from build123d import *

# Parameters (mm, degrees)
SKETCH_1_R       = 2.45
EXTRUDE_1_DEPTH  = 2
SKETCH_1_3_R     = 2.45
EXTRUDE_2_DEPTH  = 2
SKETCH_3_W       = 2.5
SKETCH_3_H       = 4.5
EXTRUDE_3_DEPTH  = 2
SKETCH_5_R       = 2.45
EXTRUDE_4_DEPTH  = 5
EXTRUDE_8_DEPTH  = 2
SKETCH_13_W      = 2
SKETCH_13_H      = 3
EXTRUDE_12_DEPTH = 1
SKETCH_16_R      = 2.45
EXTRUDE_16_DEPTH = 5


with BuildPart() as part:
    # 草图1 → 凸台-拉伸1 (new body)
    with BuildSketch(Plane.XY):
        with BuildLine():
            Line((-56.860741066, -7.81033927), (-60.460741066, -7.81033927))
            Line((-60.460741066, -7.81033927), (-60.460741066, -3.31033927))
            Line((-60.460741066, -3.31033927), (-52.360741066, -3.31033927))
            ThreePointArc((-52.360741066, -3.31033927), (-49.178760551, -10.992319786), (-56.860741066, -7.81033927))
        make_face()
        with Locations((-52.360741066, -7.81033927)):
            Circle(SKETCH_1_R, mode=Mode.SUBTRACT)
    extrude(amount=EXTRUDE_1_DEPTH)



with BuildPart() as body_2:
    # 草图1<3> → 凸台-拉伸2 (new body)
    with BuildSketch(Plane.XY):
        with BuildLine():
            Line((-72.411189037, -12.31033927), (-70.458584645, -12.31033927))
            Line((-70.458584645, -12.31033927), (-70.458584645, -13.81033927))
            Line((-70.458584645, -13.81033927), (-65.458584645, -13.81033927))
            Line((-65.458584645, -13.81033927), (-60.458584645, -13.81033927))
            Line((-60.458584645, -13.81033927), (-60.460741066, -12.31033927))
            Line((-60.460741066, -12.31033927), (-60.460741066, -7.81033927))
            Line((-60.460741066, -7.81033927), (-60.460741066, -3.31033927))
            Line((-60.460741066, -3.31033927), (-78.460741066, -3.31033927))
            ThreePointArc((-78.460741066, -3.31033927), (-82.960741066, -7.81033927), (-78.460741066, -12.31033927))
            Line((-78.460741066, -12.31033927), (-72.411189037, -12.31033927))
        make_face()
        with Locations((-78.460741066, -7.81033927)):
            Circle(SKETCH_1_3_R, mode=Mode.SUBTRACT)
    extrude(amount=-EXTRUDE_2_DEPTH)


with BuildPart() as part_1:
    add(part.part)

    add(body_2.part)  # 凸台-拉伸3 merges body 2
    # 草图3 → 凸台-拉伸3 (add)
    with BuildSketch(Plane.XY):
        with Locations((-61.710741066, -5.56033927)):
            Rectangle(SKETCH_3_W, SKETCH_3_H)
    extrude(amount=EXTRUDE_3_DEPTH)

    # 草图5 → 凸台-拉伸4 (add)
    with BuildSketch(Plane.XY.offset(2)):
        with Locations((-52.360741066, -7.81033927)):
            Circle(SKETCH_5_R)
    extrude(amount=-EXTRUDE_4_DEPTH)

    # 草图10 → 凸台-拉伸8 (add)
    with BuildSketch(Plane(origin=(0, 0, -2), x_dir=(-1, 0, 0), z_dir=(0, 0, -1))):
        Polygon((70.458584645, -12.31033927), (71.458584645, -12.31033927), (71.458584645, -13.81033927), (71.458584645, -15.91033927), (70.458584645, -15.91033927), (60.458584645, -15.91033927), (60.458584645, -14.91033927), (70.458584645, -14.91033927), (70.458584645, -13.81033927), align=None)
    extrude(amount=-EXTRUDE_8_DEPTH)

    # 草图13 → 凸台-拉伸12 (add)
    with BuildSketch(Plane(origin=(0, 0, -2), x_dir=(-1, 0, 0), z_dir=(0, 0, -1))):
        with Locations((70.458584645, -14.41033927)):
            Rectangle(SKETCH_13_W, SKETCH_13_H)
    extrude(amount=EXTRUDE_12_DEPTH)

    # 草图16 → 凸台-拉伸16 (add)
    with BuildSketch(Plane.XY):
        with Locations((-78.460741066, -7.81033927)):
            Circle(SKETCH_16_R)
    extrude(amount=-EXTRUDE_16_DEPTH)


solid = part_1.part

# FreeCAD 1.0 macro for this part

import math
import FreeCAD as App
import Part
import Sketcher

doc = App.newDocument("Part")
body = doc.addObject("PartDesign::Body", "Body")

sketch1 = body.newObject("Sketcher::SketchObject", "Sketch")
sketch1.AttachmentSupport = (doc.getObject("XY_Plane"), [""])
sketch1.MapMode = "FlatFace"
sketch1.addGeometry([
    Part.LineSegment(App.Vector(-60.5, -7.8, 0), App.Vector(-56.9, -7.8, 0)),
    Part.ArcOfCircle(Part.Circle(App.Vector(-52.4, -7.8, 0), App.Vector(0, 0, 1), 4.5), math.radians(180), math.radians(450)),
    Part.LineSegment(App.Vector(-52.4, -3.3, 0), App.Vector(-60.5, -3.3, 0)),
    Part.LineSegment(App.Vector(-60.5, -3.3, 0), App.Vector(-60.5, -7.8, 0)),
    Part.Circle(App.Vector(-52.4, -7.8, 0), App.Vector(0, 0, 1), 2.5),
], False)
sketch1.addConstraint([
    Sketcher.Constraint("Coincident", 0, 2, 1, 1),
    Sketcher.Constraint("Tangent", 1, 2, 2, 1),
    Sketcher.Constraint("Coincident", 2, 2, 3, 1),
    Sketcher.Constraint("Coincident", 3, 2, 0, 1),
    Sketcher.Constraint("Horizontal", 0),
    Sketcher.Constraint("Horizontal", 2),
    Sketcher.Constraint("Vertical", 3),
    Sketcher.Constraint("Coincident", 4, 3, 1, 3),
    Sketcher.Constraint("Horizontal", 4, 3, 0, 2),
    Sketcher.Constraint("Diameter", 4, 4.9),
    Sketcher.Constraint("Radius", 1, 4.5),
    Sketcher.Constraint("DistanceX", 0, 1, 0, 2, 3.6),
    Sketcher.Constraint("DistanceX", 1, 3, -1, 1, 52.360741),
    Sketcher.Constraint("DistanceY", 1, 3, -1, 1, 7.810339),
])
pad1 = body.newObject("PartDesign::Pad", "Pad")
pad1.Profile = sketch1
pad1.Length = 2
body2 = doc.addObject("PartDesign::Body", "Body001")

sketch2 = body2.newObject("Sketcher::SketchObject", "Sketch001")
sketch2.AttachmentSupport = (doc.getObject("XY_Plane001"), [""])
sketch2.MapMode = "FlatFace"
sketch2.addGeometry([
    Part.LineSegment(App.Vector(-70.5, -12.3, 0), App.Vector(-70.5, -13.8, 0)),
    Part.LineSegment(App.Vector(-70.5, -13.8, 0), App.Vector(-60.5, -13.8, 0)),
    Part.LineSegment(App.Vector(-60.5, -13.8, 0), App.Vector(-60.5, -12.3, 0)),
    Part.LineSegment(App.Vector(-60.5, -12.3, 0), App.Vector(-60.5, -3.3, 0)),
    Part.LineSegment(App.Vector(-60.5, -3.3, 0), App.Vector(-78.5, -3.3, 0)),
    Part.ArcOfCircle(Part.Circle(App.Vector(-78.5, -7.8, 0), App.Vector(0, 0, 1), 4.5), math.radians(90), math.radians(270)),
    Part.LineSegment(App.Vector(-78.5, -12.3, 0), App.Vector(-70.5, -12.3, 0)),
    Part.Circle(App.Vector(-78.5, -7.8, 0), App.Vector(0, 0, 1), 2.5),
], False)
sketch2.addConstraint([
    Sketcher.Constraint("Coincident", 0, 2, 1, 1),
    Sketcher.Constraint("Coincident", 1, 2, 2, 1),
    Sketcher.Constraint("Coincident", 2, 2, 3, 1),
    Sketcher.Constraint("Coincident", 3, 2, 4, 1),
    Sketcher.Constraint("Tangent", 4, 2, 5, 1),
    Sketcher.Constraint("Tangent", 5, 2, 6, 1),
    Sketcher.Constraint("Coincident", 6, 2, 0, 1),
    Sketcher.Constraint("Vertical", 0),
    Sketcher.Constraint("Horizontal", 1),
    Sketcher.Constraint("Vertical", 3),
    Sketcher.Constraint("Horizontal", 4),
    Sketcher.Constraint("Horizontal", 6),
    Sketcher.Constraint("Coincident", 7, 3, 5, 3),
    Sketcher.Constraint("Horizontal", 2, 2, 5, 2),
    Sketcher.Constraint("Diameter", 7, 4.9),
    Sketcher.Constraint("Radius", 5, 4.5),
    Sketcher.Constraint("DistanceX", 1, 1, 1, 2, 10.0),
    Sketcher.Constraint("DistanceX", 4, 2, 4, 1, 18.0),
    Sketcher.Constraint("DistanceY", 0, 2, 0, 1, 1.5),
    Sketcher.Constraint("DistanceX", 6, 1, 6, 2, 8.002156),
    Sketcher.Constraint("DistanceX", 5, 3, -1, 1, 78.460741),
    Sketcher.Constraint("DistanceY", 5, 3, -1, 1, 7.810339),
])
pad2 = body2.newObject("PartDesign::Pad", "Pad001")
pad2.Profile = sketch2
pad2.Length = 2
pad2.Reversed = True
body.AllowCompound = True
doc.recompute()

boolean = body.newObject("PartDesign::Boolean", "Boolean")
boolean.Type = "Fuse"
boolean.addObjects([body2])

sketch3 = body.newObject("Sketcher::SketchObject", "Sketch002")
sketch3.AttachmentSupport = (doc.getObject("XY_Plane"), [""])
sketch3.MapMode = "FlatFace"
sketch3.addGeometry([
    Part.LineSegment(App.Vector(-63, -3.3, 0), App.Vector(-63, -7.8, 0)),
    Part.LineSegment(App.Vector(-63, -7.8, 0), App.Vector(-60.5, -7.8, 0)),
    Part.LineSegment(App.Vector(-60.5, -7.8, 0), App.Vector(-60.5, -3.3, 0)),
    Part.LineSegment(App.Vector(-60.5, -3.3, 0), App.Vector(-63, -3.3, 0)),
], False)
sketch3.addConstraint([
    Sketcher.Constraint("Coincident", 0, 2, 1, 1),
    Sketcher.Constraint("Coincident", 1, 2, 2, 1),
    Sketcher.Constraint("Coincident", 2, 2, 3, 1),
    Sketcher.Constraint("Coincident", 3, 2, 0, 1),
    Sketcher.Constraint("Vertical", 0),
    Sketcher.Constraint("Horizontal", 1),
    Sketcher.Constraint("Vertical", 2),
    Sketcher.Constraint("Horizontal", 3),
    Sketcher.Constraint("DistanceX", 1, 1, 1, 2, 2.5),
    Sketcher.Constraint("DistanceY", 0, 2, 0, 1, 4.5),
    Sketcher.Constraint("DistanceX", 0, 2, -1, 1, 62.960741),
    Sketcher.Constraint("DistanceY", 0, 2, -1, 1, 7.810339),
])
pad3 = body.newObject("PartDesign::Pad", "Pad002")
pad3.Profile = sketch3
pad3.Length = 2

sketch4 = body.newObject("Sketcher::SketchObject", "Sketch003")
sketch4.AttachmentSupport = (doc.getObject("XY_Plane"), [""])
sketch4.MapMode = "FlatFace"
sketch4.AttachmentOffset = App.Placement(App.Vector(0, 0, 2), App.Rotation())
sketch4.addGeometry(Part.Circle(App.Vector(-52.4, -7.8, 0), App.Vector(0, 0, 1), 2.5), False)
sketch4.addConstraint([
    Sketcher.Constraint("Diameter", 0, 4.9),
    Sketcher.Constraint("DistanceX", 0, 3, -1, 1, 52.360741),
    Sketcher.Constraint("DistanceY", 0, 3, -1, 1, 7.810339),
])
pad4 = body.newObject("PartDesign::Pad", "Pad003")
pad4.Profile = sketch4
pad4.Length = 5
pad4.Reversed = True

sketch5 = body.newObject("Sketcher::SketchObject", "Sketch004")
sketch5.AttachmentSupport = (doc.getObject("XY_Plane"), [""])
sketch5.MapMode = "FlatFace"
sketch5.AttachmentOffset = App.Placement(App.Vector(0, 0, -2), App.Rotation())
sketch5.addGeometry([
    Part.LineSegment(App.Vector(-71.5, -12.3, 0), App.Vector(-70.5, -12.3, 0)),
    Part.LineSegment(App.Vector(-70.5, -12.3, 0), App.Vector(-70.5, -14.9, 0)),
    Part.LineSegment(App.Vector(-70.5, -14.9, 0), App.Vector(-60.5, -14.9, 0)),
    Part.LineSegment(App.Vector(-60.5, -14.9, 0), App.Vector(-60.5, -15.9, 0)),
    Part.LineSegment(App.Vector(-60.5, -15.9, 0), App.Vector(-71.5, -15.9, 0)),
    Part.LineSegment(App.Vector(-71.5, -15.9, 0), App.Vector(-71.5, -12.3, 0)),
], False)
sketch5.addConstraint([
    Sketcher.Constraint("Coincident", 0, 2, 1, 1),
    Sketcher.Constraint("Coincident", 1, 2, 2, 1),
    Sketcher.Constraint("Coincident", 2, 2, 3, 1),
    Sketcher.Constraint("Coincident", 3, 2, 4, 1),
    Sketcher.Constraint("Coincident", 4, 2, 5, 1),
    Sketcher.Constraint("Coincident", 5, 2, 0, 1),
    Sketcher.Constraint("Horizontal", 0),
    Sketcher.Constraint("Vertical", 1),
    Sketcher.Constraint("Horizontal", 2),
    Sketcher.Constraint("Vertical", 3),
    Sketcher.Constraint("Horizontal", 4),
    Sketcher.Constraint("Vertical", 5),
    Sketcher.Constraint("Equal", 0, 3),
    Sketcher.Constraint("DistanceX", 0, 1, 0, 2, 1.0),
    Sketcher.Constraint("DistanceX", 2, 1, 2, 2, 10.0),
    Sketcher.Constraint("DistanceY", 1, 2, 1, 1, 2.6),
    Sketcher.Constraint("DistanceY", 0, 2, -1, 1, 12.310339),
    Sketcher.Constraint("DistanceX", 0, 2, -1, 1, 70.458585),
])
pad5 = body.newObject("PartDesign::Pad", "Pad004")
pad5.Profile = sketch5
pad5.Length = 2

sketch6 = body.newObject("Sketcher::SketchObject", "Sketch005")
sketch6.AttachmentSupport = (doc.getObject("XY_Plane"), [""])
sketch6.MapMode = "FlatFace"
sketch6.AttachmentOffset = App.Placement(App.Vector(0, 0, -2), App.Rotation())
sketch6.addGeometry([
    Part.LineSegment(App.Vector(-69.5, -12.9, 0), App.Vector(-69.5, -15.9, 0)),
    Part.LineSegment(App.Vector(-69.5, -15.9, 0), App.Vector(-71.5, -15.9, 0)),
    Part.LineSegment(App.Vector(-71.5, -15.9, 0), App.Vector(-71.5, -12.9, 0)),
    Part.LineSegment(App.Vector(-71.5, -12.9, 0), App.Vector(-69.5, -12.9, 0)),
], False)
sketch6.addConstraint([
    Sketcher.Constraint("Coincident", 0, 2, 1, 1),
    Sketcher.Constraint("Coincident", 1, 2, 2, 1),
    Sketcher.Constraint("Coincident", 2, 2, 3, 1),
    Sketcher.Constraint("Coincident", 3, 2, 0, 1),
    Sketcher.Constraint("Vertical", 0),
    Sketcher.Constraint("Horizontal", 1),
    Sketcher.Constraint("Vertical", 2),
    Sketcher.Constraint("Horizontal", 3),
    Sketcher.Constraint("DistanceX", 1, 2, 1, 1, 2.0),
    Sketcher.Constraint("DistanceY", 0, 2, 0, 1, 3.0),
    Sketcher.Constraint("DistanceY", 0, 2, -1, 1, 15.910339),
    Sketcher.Constraint("DistanceX", 0, 2, -1, 1, 69.458585),
])
pad6 = body.newObject("PartDesign::Pad", "Pad005")
pad6.Profile = sketch6
pad6.Length = 1
pad6.Reversed = True

sketch7 = body.newObject("Sketcher::SketchObject", "Sketch006")
sketch7.AttachmentSupport = (doc.getObject("XY_Plane"), [""])
sketch7.MapMode = "FlatFace"
sketch7.addGeometry(Part.Circle(App.Vector(-78.5, -7.8, 0), App.Vector(0, 0, 1), 2.5), False)
sketch7.addConstraint([
    Sketcher.Constraint("Diameter", 0, 4.9),
    Sketcher.Constraint("DistanceX", 0, 3, -1, 1, 78.460741),
    Sketcher.Constraint("DistanceY", 0, 3, -1, 1, 7.810339),
])
pad7 = body.newObject("PartDesign::Pad", "Pad006")
pad7.Profile = sketch7
pad7.Length = 5
pad7.Reversed = True

doc.recompute()
